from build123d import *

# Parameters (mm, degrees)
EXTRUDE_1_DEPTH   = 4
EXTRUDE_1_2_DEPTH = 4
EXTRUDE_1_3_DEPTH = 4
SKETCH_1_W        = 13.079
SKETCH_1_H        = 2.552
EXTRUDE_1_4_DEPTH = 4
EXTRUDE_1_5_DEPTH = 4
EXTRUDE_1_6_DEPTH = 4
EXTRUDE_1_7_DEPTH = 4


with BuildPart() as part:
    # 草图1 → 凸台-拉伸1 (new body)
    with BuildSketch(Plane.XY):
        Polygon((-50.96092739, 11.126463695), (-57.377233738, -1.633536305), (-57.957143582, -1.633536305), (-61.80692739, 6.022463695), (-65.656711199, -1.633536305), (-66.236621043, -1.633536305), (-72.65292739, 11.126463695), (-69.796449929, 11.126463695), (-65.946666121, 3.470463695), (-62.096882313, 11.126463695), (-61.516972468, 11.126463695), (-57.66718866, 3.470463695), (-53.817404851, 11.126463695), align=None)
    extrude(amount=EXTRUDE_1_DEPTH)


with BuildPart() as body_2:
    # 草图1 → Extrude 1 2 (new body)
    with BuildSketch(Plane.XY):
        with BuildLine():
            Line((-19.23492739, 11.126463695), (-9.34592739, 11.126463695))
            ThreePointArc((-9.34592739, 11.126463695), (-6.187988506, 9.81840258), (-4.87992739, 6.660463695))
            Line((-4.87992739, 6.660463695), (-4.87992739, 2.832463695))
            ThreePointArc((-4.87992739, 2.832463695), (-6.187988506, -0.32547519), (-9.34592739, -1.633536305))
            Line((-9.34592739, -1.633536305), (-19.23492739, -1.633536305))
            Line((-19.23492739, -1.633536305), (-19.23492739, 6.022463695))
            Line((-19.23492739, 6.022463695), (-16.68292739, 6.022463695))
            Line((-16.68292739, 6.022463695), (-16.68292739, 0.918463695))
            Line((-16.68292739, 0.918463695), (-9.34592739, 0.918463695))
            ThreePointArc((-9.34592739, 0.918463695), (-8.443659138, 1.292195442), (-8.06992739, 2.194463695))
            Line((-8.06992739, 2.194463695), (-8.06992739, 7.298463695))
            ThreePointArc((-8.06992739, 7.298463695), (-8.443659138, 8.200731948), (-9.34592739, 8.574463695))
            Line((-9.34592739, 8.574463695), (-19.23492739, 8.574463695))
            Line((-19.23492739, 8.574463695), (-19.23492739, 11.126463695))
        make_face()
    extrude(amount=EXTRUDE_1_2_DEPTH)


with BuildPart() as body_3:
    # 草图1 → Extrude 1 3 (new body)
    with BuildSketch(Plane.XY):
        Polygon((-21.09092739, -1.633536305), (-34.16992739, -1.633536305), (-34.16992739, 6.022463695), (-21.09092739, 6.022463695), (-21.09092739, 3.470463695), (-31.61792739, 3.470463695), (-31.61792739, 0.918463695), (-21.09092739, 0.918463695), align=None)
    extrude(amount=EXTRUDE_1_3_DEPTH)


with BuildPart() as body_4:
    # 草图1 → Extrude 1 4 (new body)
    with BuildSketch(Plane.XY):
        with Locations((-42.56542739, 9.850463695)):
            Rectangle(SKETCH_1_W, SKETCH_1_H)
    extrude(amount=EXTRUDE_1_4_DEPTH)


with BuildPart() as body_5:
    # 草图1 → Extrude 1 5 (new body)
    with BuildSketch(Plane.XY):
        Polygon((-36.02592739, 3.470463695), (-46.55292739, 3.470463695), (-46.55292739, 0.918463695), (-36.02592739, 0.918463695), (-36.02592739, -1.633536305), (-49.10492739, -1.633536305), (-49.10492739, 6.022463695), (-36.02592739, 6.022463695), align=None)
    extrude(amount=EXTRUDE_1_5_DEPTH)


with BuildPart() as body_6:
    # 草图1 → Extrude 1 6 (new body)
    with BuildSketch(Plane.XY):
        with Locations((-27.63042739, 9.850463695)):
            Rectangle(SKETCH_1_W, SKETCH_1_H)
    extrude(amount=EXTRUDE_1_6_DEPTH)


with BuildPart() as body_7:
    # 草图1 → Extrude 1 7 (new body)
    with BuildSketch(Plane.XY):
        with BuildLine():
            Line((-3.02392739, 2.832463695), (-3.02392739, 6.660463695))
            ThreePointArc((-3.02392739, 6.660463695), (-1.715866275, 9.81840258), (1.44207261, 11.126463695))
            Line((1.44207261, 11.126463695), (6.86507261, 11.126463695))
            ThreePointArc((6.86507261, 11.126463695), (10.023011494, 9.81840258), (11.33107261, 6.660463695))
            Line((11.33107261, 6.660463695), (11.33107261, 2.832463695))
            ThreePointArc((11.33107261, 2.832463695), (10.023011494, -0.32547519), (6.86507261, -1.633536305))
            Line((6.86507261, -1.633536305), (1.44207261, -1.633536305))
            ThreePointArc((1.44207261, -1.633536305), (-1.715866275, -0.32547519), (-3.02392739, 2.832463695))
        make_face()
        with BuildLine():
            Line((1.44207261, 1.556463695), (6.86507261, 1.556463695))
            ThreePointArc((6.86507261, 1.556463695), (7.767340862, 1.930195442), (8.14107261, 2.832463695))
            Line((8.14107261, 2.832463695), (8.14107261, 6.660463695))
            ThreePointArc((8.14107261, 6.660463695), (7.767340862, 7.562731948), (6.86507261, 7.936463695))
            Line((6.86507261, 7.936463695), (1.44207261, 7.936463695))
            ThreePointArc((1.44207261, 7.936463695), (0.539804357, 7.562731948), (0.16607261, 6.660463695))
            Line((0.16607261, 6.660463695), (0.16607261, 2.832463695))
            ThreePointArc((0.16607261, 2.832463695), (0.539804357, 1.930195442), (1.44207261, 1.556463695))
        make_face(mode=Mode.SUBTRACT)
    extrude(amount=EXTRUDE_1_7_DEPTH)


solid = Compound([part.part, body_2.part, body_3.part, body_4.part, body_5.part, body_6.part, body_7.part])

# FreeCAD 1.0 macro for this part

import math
import FreeCAD as App
import Part
import Sketcher


def add_polygon(sketch, points):
    """Adds a closed chain of lines whose ends are joined by coincident constraints."""
    first, n = sketch.GeometryCount, len(points)
    for a, b in zip(points, points[1:] + points[:1]):
        sketch.addGeometry(Part.LineSegment(App.Vector(*a, 0), App.Vector(*b, 0)), False)
    for i in range(n):
        sketch.addConstraint(Sketcher.Constraint("Coincident", first + i, 2, first + (i + 1) % n, 1))

doc = App.newDocument("Part")
body = doc.addObject("PartDesign::Body", "Body")

sketch1 = doc.addObject("Sketcher::SketchObject", "Sketch")
body.addObject(sketch1)
sketch1.AttachmentSupport = (doc.XY_Plane, [""])
sketch1.MapMode = "FlatFace"
add_polygon(sketch1, [(-57.377234, -1.633536), (-50.960927, 11.126464), (-53.817405, 11.126464), (-57.667189, 3.470464), (-61.516972, 11.126464), (-62.096882, 11.126464), (-65.946666, 3.470464), (-69.79645, 11.126464), (-72.652927, 11.126464), (-66.236621, -1.633536), (-65.656711, -1.633536), (-61.806927, 6.022464), (-57.957144, -1.633536)])
sketch1.addConstraint([
    Sketcher.Constraint("Horizontal", 1),
    Sketcher.Constraint("Horizontal", 4),
    Sketcher.Constraint("Horizontal", 7),
    Sketcher.Constraint("Horizontal", 9),
    Sketcher.Constraint("Horizontal", 12),
    Sketcher.Constraint("Parallel", 0, 2),
    Sketcher.Constraint("Parallel", 2, 5),
    Sketcher.Constraint("Parallel", 3, 6),
    Sketcher.Constraint("Parallel", 6, 8),
    Sketcher.Constraint("Parallel", 5, 10),
    Sketcher.Constraint("Parallel", 8, 11),
    Sketcher.Constraint("Horizontal", 1, 2, 3, 2),
    Sketcher.Constraint("Horizontal", 2, 2, 5, 2),
    Sketcher.Constraint("Horizontal", 4, 2, 6, 2),
    Sketcher.Constraint("Horizontal", 9, 2, 11, 2),
    Sketcher.Constraint("Equal", 1, 7),
    Sketcher.Constraint("Equal", 4, 9),
    Sketcher.Constraint("Equal", 9, 12),
    Sketcher.Constraint("Equal", 2, 3),
    Sketcher.Constraint("Equal", 6, 10),
    Sketcher.Constraint("DistanceY", 8, 2, 6, 2, 12.76),
    Sketcher.Constraint("DistanceY", 2, 2, 1, 2, 7.656),
    Sketcher.Constraint("DistanceX", 4, 2, 4, 1, 0.57991),
    Sketcher.Constraint("DistanceX", 1, 2, 1, 1, 2.856477),
    Sketcher.Constraint("DistanceX", 2, 2, -1, 1, 57.667189),
    Sketcher.Constraint("DistanceY", -1, 1, 0, 2, 11.126464),
])
pad1 = doc.addObject("PartDesign::Pad", "Pad")
body.addObject(pad1)
pad1.Profile = sketch1
pad1.Length = 4
body2 = doc.addObject("PartDesign::Body", "Body001")

sketch2 = doc.addObject("Sketcher::SketchObject", "Sketch001")
body2.addObject(sketch2)
sketch2.AttachmentSupport = (doc.getObject("XY_Plane001"), [""])
sketch2.MapMode = "FlatFace"
sketch2.addGeometry([
    Part.LineSegment(App.Vector(-9.345927, 11.126464, 0), App.Vector(-19.234927, 11.126464, 0)),
    Part.LineSegment(App.Vector(-19.234927, 11.126464, 0), App.Vector(-19.234927, 8.574464, 0)),
    Part.LineSegment(App.Vector(-19.234927, 8.574464, 0), App.Vector(-9.345927, 8.574464, 0)),
    Part.ArcOfCircle(Part.Circle(App.Vector(-9.345927, 7.298464, 0), App.Vector(0, 0, 1), 1.276), math.radians(0), math.radians(90)),
    Part.LineSegment(App.Vector(-8.069927, 7.298464, 0), App.Vector(-8.069927, 2.194464, 0)),
    Part.ArcOfCircle(Part.Circle(App.Vector(-9.345927, 2.194464, 0), App.Vector(0, 0, 1), 1.276), math.radians(-90), math.radians(0)),
    Part.LineSegment(App.Vector(-9.345927, 0.918464, 0), App.Vector(-16.682927, 0.918464, 0)),
    Part.LineSegment(App.Vector(-16.682927, 0.918464, 0), App.Vector(-16.682927, 6.022464, 0)),
    Part.LineSegment(App.Vector(-16.682927, 6.022464, 0), App.Vector(-19.234927, 6.022464, 0)),
    Part.LineSegment(App.Vector(-19.234927, 6.022464, 0), App.Vector(-19.234927, -1.633536, 0)),
    Part.LineSegment(App.Vector(-19.234927, -1.633536, 0), App.Vector(-9.345927, -1.633536, 0)),
    Part.ArcOfCircle(Part.Circle(App.Vector(-9.345927, 2.832464, 0), App.Vector(0, 0, 1), 4.466), math.radians(-90), math.radians(0)),
    Part.LineSegment(App.Vector(-4.879927, 2.832464, 0), App.Vector(-4.879927, 6.660464, 0)),
    Part.ArcOfCircle(Part.Circle(App.Vector(-9.345927, 6.660464, 0), App.Vector(0, 0, 1), 4.466), math.radians(0), math.radians(90)),
], False)
sketch2.addConstraint([
    Sketcher.Constraint("Coincident", 0, 2, 1, 1),
    Sketcher.Constraint("Coincident", 1, 2, 2, 1),
    Sketcher.Constraint("Tangent", 2, 2, 3, 2),
    Sketcher.Constraint("Tangent", 3, 1, 4, 1),
    Sketcher.Constraint("Tangent", 4, 2, 5, 2),
    Sketcher.Constraint("Tangent", 5, 1, 6, 1),
    Sketcher.Constraint("Coincident", 6, 2, 7, 1),
    Sketcher.Constraint("Coincident", 7, 2, 8, 1),
    Sketcher.Constraint("Coincident", 8, 2, 9, 1),
    Sketcher.Constraint("Coincident", 9, 2, 10, 1),
    Sketcher.Constraint("Tangent", 10, 2, 11, 1),
    Sketcher.Constraint("Tangent", 11, 2, 12, 1),
    Sketcher.Constraint("Tangent", 12, 2, 13, 1),
    Sketcher.Constraint("Tangent", 13, 2, 0, 1),
    Sketcher.Constraint("Horizontal", 0),
    Sketcher.Constraint("Vertical", 1),
    Sketcher.Constraint("Horizontal", 2),
    Sketcher.Constraint("Vertical", 4),
    Sketcher.Constraint("Horizontal", 6),
    Sketcher.Constraint("Vertical", 7),
    Sketcher.Constraint("Horizontal", 8),
    Sketcher.Constraint("Vertical", 9),
    Sketcher.Constraint("Horizontal", 10),
    Sketcher.Constraint("Vertical", 12),
    Sketcher.Constraint("Equal", 3, 5),
    Sketcher.Constraint("Equal", 11, 13),
    Sketcher.Constraint("Vertical", 5, 3, 11, 3),
    Sketcher.Constraint("Vertical", 1, 2, 8, 2),
    Sketcher.Constraint("Equal", 8, 1),
    Sketcher.Constraint("Equal", 4, 7),
    Sketcher.Constraint("Radius", 3, 1.276),
    Sketcher.Constraint("Radius", 11, 4.466),
    Sketcher.Constraint("DistanceX", 0, 2, 0, 1, 9.889),
    Sketcher.Constraint("DistanceX", 6, 2, 6, 1, 7.337),
    Sketcher.Constraint("DistanceY", 4, 2, 4, 1, 5.104),
    Sketcher.Constraint("DistanceY", 9, 2, 9, 1, 7.656),
    Sketcher.Constraint("DistanceX", 3, 3, -1, 1, 9.345927),
    Sketcher.Constraint("DistanceY", -1, 1, 3, 3, 7.298464),
])
pad2 = doc.addObject("PartDesign::Pad", "Pad001")
body2.addObject(pad2)
pad2.Profile = sketch2
pad2.Length = 4
body3 = doc.addObject("PartDesign::Body", "Body002")

sketch3 = doc.addObject("Sketcher::SketchObject", "Sketch002")
body3.addObject(sketch3)
sketch3.AttachmentSupport = (doc.getObject("XY_Plane002"), [""])
sketch3.MapMode = "FlatFace"
add_polygon(sketch3, [(-34.169927, -1.633536), (-21.090927, -1.633536), (-21.090927, 0.918464), (-31.617927, 0.918464), (-31.617927, 3.470464), (-21.090927, 3.470464), (-21.090927, 6.022464), (-34.169927, 6.022464)])
sketch3.addConstraint([
    Sketcher.Constraint("Horizontal", 0),
    Sketcher.Constraint("Vertical", 1),
    Sketcher.Constraint("Horizontal", 2),
    Sketcher.Constraint("Vertical", 3),
    Sketcher.Constraint("Horizontal", 4),
    Sketcher.Constraint("Vertical", 5),
    Sketcher.Constraint("Horizontal", 6),
    Sketcher.Constraint("Vertical", 7),
    Sketcher.Constraint("Vertical", 1, 2, 4, 2),
    Sketcher.Constraint("Equal", 1, 3),
    Sketcher.Constraint("Equal", 3, 5),
    Sketcher.Constraint("DistanceX", 0, 1, 0, 2, 13.079),
    Sketcher.Constraint("DistanceX", 2, 2, 2, 1, 10.527),
    Sketcher.Constraint("DistanceY", 1, 1, 1, 2, 2.552),
    Sketcher.Constraint("DistanceX", 0, 2, -1, 1, 21.090927),
    Sketcher.Constraint("DistanceY", 0, 2, -1, 1, 1.633536),
])
pad3 = doc.addObject("PartDesign::Pad", "Pad002")
body3.addObject(pad3)
pad3.Profile = sketch3
pad3.Length = 4
body4 = doc.addObject("PartDesign::Body", "Body003")

sketch4 = doc.addObject("Sketcher::SketchObject", "Sketch003")
body4.addObject(sketch4)
sketch4.AttachmentSupport = (doc.getObject("XY_Plane003"), [""])
sketch4.MapMode = "FlatFace"
add_polygon(sketch4, [(-49.104927, 11.126464), (-49.104927, 8.574464), (-36.025927, 8.574464), (-36.025927, 11.126464)])
sketch4.addConstraint([
    Sketcher.Constraint("Vertical", 0),
    Sketcher.Constraint("Horizontal", 1),
    Sketcher.Constraint("Vertical", 2),
    Sketcher.Constraint("Horizontal", 3),
    Sketcher.Constraint("DistanceX", 1, 1, 1, 2, 13.079),
    Sketcher.Constraint("DistanceY", 0, 2, 0, 1, 2.552),
    Sketcher.Constraint("DistanceX", 0, 2, -1, 1, 49.104927),
    Sketcher.Constraint("DistanceY", -1, 1, 0, 2, 8.574464),
])
pad4 = doc.addObject("PartDesign::Pad", "Pad003")
body4.addObject(pad4)
pad4.Profile = sketch4
pad4.Length = 4
body5 = doc.addObject("PartDesign::Body", "Body004")

sketch5 = doc.addObject("Sketcher::SketchObject", "Sketch004")
body5.addObject(sketch5)
sketch5.AttachmentSupport = (doc.getObject("XY_Plane004"), [""])
sketch5.MapMode = "FlatFace"
add_polygon(sketch5, [(-46.552927, 3.470464), (-36.025927, 3.470464), (-36.025927, 6.022464), (-49.104927, 6.022464), (-49.104927, -1.633536), (-36.025927, -1.633536), (-36.025927, 0.918464), (-46.552927, 0.918464)])
sketch5.addConstraint([
    Sketcher.Constraint("Horizontal", 0),
    Sketcher.Constraint("Vertical", 1),
    Sketcher.Constraint("Horizontal", 2),
    Sketcher.Constraint("Vertical", 3),
    Sketcher.Constraint("Horizontal", 4),
    Sketcher.Constraint("Vertical", 5),
    Sketcher.Constraint("Horizontal", 6),
    Sketcher.Constraint("Vertical", 7),
    Sketcher.Constraint("Vertical", 1, 2, 4, 2),
    Sketcher.Constraint("Equal", 1, 5),
    Sketcher.Constraint("Equal", 5, 7),
    Sketcher.Constraint("DistanceX", 0, 1, 0, 2, 10.527),
    Sketcher.Constraint("DistanceX", 2, 2, 2, 1, 13.079),
    Sketcher.Constraint("DistanceY", 1, 1, 1, 2, 2.552),
    Sketcher.Constraint("DistanceX", 0, 2, -1, 1, 36.025927),
    Sketcher.Constraint("DistanceY", -1, 1, 0, 2, 3.470464),
])
pad5 = doc.addObject("PartDesign::Pad", "Pad004")
body5.addObject(pad5)
pad5.Profile = sketch5
pad5.Length = 4
body6 = doc.addObject("PartDesign::Body", "Body005")

sketch6 = doc.addObject("Sketcher::SketchObject", "Sketch005")
body6.addObject(sketch6)
sketch6.AttachmentSupport = (doc.getObject("XY_Plane005"), [""])
sketch6.MapMode = "FlatFace"
add_polygon(sketch6, [(-34.169927, 11.126464), (-34.169927, 8.574464), (-21.090927, 8.574464), (-21.090927, 11.126464)])
sketch6.addConstraint([
    Sketcher.Constraint("Vertical", 0),
    Sketcher.Constraint("Horizontal", 1),
    Sketcher.Constraint("Vertical", 2),
    Sketcher.Constraint("Horizontal", 3),
    Sketcher.Constraint("DistanceX", 1, 1, 1, 2, 13.079),
    Sketcher.Constraint("DistanceY", 0, 2, 0, 1, 2.552),
    Sketcher.Constraint("DistanceX", 0, 2, -1, 1, 34.169927),
    Sketcher.Constraint("DistanceY", -1, 1, 0, 2, 8.574464),
])
pad6 = doc.addObject("PartDesign::Pad", "Pad005")
body6.addObject(pad6)
pad6.Profile = sketch6
pad6.Length = 4
body7 = doc.addObject("PartDesign::Body", "Body006")

sketch7 = doc.addObject("Sketcher::SketchObject", "Sketch006")
body7.addObject(sketch7)
sketch7.AttachmentSupport = (doc.getObject("XY_Plane006"), [""])
sketch7.MapMode = "FlatFace"
sketch7.addGeometry([
    Part.LineSegment(App.Vector(-3.023927, 6.660464, 0), App.Vector(-3.023927, 2.832464, 0)),
    Part.ArcOfCircle(Part.Circle(App.Vector(1.442073, 2.832464, 0), App.Vector(0, 0, 1), 4.466), math.radians(180), math.radians(270)),
    Part.LineSegment(App.Vector(1.442073, -1.633536, 0), App.Vector(6.865073, -1.633536, 0)),
    Part.ArcOfCircle(Part.Circle(App.Vector(6.865073, 2.832464, 0), App.Vector(0, 0, 1), 4.466), math.radians(-90), math.radians(0)),
    Part.LineSegment(App.Vector(11.331073, 2.832464, 0), App.Vector(11.331073, 6.660464, 0)),
    Part.ArcOfCircle(Part.Circle(App.Vector(6.865073, 6.660464, 0), App.Vector(0, 0, 1), 4.466), math.radians(0), math.radians(90)),
    Part.LineSegment(App.Vector(6.865073, 11.126464, 0), App.Vector(1.442073, 11.126464, 0)),
    Part.ArcOfCircle(Part.Circle(App.Vector(1.442073, 6.660464, 0), App.Vector(0, 0, 1), 4.466), math.radians(90), math.radians(180)),
    Part.ArcOfCircle(Part.Circle(App.Vector(1.442073, 2.832464, 0), App.Vector(0, 0, 1), 1.276), math.radians(180), math.radians(270)),
    Part.LineSegment(App.Vector(0.166073, 2.832464, 0), App.Vector(0.166073, 6.660464, 0)),
    Part.ArcOfCircle(Part.Circle(App.Vector(1.442073, 6.660464, 0), App.Vector(0, 0, 1), 1.276), math.radians(90), math.radians(180)),
    Part.LineSegment(App.Vector(1.442073, 7.936464, 0), App.Vector(6.865073, 7.936464, 0)),
    Part.ArcOfCircle(Part.Circle(App.Vector(6.865073, 6.660464, 0), App.Vector(0, 0, 1), 1.276), math.radians(0), math.radians(90)),
    Part.LineSegment(App.Vector(8.141073, 6.660464, 0), App.Vector(8.141073, 2.832464, 0)),
    Part.ArcOfCircle(Part.Circle(App.Vector(6.865073, 2.832464, 0), App.Vector(0, 0, 1), 1.276), math.radians(-90), math.radians(0)),
    Part.LineSegment(App.Vector(6.865073, 1.556464, 0), App.Vector(1.442073, 1.556464, 0)),
], False)
sketch7.addConstraint([
    Sketcher.Constraint("Tangent", 0, 2, 1, 1),
    Sketcher.Constraint("Tangent", 1, 2, 2, 1),
    Sketcher.Constraint("Tangent", 2, 2, 3, 1),
    Sketcher.Constraint("Tangent", 3, 2, 4, 1),
    Sketcher.Constraint("Tangent", 4, 2, 5, 1),
    Sketcher.Constraint("Tangent", 5, 2, 6, 1),
    Sketcher.Constraint("Tangent", 6, 2, 7, 1),
    Sketcher.Constraint("Tangent", 7, 2, 0, 1),
    Sketcher.Constraint("Tangent", 8, 1, 9, 1),
    Sketcher.Constraint("Tangent", 9, 2, 10, 2),
    Sketcher.Constraint("Tangent", 10, 1, 11, 1),
    Sketcher.Constraint("Tangent", 11, 2, 12, 2),
    Sketcher.Constraint("Tangent", 12, 1, 13, 1),
    Sketcher.Constraint("Tangent", 13, 2, 14, 2),
    Sketcher.Constraint("Tangent", 14, 1, 15, 1),
    Sketcher.Constraint("Tangent", 15, 2, 8, 2),
    Sketcher.Constraint("Vertical", 0),
    Sketcher.Constraint("Horizontal", 2),
    Sketcher.Constraint("Vertical", 4),
    Sketcher.Constraint("Horizontal", 6),
    Sketcher.Constraint("Vertical", 9),
    Sketcher.Constraint("Horizontal", 11),
    Sketcher.Constraint("Vertical", 13),
    Sketcher.Constraint("Horizontal", 15),
    Sketcher.Constraint("Coincident", 8, 3, 1, 3),
    Sketcher.Constraint("Coincident", 10, 3, 7, 3),
    Sketcher.Constraint("Coincident", 12, 3, 5, 3),
    Sketcher.Constraint("Equal", 1, 3),
    Sketcher.Constraint("Equal", 3, 5),
    Sketcher.Constraint("Equal", 5, 7),
    Sketcher.Constraint("Equal", 12, 14),
    Sketcher.Constraint("Radius", 1, 4.466),
    Sketcher.Constraint("Radius", 8, 1.276),
    Sketcher.Constraint("DistanceX", 2, 1, 2, 2, 5.423),
    Sketcher.Constraint("DistanceY", 0, 2, 0, 1, 3.828),
    Sketcher.Constraint("DistanceX", -1, 1, 1, 3, 1.442073),
    Sketcher.Constraint("DistanceY", -1, 1, 1, 3, 2.832464),
])
pad7 = doc.addObject("PartDesign::Pad", "Pad006")
body7.addObject(pad7)
pad7.Profile = sketch7
pad7.Length = 4

doc.recompute()
